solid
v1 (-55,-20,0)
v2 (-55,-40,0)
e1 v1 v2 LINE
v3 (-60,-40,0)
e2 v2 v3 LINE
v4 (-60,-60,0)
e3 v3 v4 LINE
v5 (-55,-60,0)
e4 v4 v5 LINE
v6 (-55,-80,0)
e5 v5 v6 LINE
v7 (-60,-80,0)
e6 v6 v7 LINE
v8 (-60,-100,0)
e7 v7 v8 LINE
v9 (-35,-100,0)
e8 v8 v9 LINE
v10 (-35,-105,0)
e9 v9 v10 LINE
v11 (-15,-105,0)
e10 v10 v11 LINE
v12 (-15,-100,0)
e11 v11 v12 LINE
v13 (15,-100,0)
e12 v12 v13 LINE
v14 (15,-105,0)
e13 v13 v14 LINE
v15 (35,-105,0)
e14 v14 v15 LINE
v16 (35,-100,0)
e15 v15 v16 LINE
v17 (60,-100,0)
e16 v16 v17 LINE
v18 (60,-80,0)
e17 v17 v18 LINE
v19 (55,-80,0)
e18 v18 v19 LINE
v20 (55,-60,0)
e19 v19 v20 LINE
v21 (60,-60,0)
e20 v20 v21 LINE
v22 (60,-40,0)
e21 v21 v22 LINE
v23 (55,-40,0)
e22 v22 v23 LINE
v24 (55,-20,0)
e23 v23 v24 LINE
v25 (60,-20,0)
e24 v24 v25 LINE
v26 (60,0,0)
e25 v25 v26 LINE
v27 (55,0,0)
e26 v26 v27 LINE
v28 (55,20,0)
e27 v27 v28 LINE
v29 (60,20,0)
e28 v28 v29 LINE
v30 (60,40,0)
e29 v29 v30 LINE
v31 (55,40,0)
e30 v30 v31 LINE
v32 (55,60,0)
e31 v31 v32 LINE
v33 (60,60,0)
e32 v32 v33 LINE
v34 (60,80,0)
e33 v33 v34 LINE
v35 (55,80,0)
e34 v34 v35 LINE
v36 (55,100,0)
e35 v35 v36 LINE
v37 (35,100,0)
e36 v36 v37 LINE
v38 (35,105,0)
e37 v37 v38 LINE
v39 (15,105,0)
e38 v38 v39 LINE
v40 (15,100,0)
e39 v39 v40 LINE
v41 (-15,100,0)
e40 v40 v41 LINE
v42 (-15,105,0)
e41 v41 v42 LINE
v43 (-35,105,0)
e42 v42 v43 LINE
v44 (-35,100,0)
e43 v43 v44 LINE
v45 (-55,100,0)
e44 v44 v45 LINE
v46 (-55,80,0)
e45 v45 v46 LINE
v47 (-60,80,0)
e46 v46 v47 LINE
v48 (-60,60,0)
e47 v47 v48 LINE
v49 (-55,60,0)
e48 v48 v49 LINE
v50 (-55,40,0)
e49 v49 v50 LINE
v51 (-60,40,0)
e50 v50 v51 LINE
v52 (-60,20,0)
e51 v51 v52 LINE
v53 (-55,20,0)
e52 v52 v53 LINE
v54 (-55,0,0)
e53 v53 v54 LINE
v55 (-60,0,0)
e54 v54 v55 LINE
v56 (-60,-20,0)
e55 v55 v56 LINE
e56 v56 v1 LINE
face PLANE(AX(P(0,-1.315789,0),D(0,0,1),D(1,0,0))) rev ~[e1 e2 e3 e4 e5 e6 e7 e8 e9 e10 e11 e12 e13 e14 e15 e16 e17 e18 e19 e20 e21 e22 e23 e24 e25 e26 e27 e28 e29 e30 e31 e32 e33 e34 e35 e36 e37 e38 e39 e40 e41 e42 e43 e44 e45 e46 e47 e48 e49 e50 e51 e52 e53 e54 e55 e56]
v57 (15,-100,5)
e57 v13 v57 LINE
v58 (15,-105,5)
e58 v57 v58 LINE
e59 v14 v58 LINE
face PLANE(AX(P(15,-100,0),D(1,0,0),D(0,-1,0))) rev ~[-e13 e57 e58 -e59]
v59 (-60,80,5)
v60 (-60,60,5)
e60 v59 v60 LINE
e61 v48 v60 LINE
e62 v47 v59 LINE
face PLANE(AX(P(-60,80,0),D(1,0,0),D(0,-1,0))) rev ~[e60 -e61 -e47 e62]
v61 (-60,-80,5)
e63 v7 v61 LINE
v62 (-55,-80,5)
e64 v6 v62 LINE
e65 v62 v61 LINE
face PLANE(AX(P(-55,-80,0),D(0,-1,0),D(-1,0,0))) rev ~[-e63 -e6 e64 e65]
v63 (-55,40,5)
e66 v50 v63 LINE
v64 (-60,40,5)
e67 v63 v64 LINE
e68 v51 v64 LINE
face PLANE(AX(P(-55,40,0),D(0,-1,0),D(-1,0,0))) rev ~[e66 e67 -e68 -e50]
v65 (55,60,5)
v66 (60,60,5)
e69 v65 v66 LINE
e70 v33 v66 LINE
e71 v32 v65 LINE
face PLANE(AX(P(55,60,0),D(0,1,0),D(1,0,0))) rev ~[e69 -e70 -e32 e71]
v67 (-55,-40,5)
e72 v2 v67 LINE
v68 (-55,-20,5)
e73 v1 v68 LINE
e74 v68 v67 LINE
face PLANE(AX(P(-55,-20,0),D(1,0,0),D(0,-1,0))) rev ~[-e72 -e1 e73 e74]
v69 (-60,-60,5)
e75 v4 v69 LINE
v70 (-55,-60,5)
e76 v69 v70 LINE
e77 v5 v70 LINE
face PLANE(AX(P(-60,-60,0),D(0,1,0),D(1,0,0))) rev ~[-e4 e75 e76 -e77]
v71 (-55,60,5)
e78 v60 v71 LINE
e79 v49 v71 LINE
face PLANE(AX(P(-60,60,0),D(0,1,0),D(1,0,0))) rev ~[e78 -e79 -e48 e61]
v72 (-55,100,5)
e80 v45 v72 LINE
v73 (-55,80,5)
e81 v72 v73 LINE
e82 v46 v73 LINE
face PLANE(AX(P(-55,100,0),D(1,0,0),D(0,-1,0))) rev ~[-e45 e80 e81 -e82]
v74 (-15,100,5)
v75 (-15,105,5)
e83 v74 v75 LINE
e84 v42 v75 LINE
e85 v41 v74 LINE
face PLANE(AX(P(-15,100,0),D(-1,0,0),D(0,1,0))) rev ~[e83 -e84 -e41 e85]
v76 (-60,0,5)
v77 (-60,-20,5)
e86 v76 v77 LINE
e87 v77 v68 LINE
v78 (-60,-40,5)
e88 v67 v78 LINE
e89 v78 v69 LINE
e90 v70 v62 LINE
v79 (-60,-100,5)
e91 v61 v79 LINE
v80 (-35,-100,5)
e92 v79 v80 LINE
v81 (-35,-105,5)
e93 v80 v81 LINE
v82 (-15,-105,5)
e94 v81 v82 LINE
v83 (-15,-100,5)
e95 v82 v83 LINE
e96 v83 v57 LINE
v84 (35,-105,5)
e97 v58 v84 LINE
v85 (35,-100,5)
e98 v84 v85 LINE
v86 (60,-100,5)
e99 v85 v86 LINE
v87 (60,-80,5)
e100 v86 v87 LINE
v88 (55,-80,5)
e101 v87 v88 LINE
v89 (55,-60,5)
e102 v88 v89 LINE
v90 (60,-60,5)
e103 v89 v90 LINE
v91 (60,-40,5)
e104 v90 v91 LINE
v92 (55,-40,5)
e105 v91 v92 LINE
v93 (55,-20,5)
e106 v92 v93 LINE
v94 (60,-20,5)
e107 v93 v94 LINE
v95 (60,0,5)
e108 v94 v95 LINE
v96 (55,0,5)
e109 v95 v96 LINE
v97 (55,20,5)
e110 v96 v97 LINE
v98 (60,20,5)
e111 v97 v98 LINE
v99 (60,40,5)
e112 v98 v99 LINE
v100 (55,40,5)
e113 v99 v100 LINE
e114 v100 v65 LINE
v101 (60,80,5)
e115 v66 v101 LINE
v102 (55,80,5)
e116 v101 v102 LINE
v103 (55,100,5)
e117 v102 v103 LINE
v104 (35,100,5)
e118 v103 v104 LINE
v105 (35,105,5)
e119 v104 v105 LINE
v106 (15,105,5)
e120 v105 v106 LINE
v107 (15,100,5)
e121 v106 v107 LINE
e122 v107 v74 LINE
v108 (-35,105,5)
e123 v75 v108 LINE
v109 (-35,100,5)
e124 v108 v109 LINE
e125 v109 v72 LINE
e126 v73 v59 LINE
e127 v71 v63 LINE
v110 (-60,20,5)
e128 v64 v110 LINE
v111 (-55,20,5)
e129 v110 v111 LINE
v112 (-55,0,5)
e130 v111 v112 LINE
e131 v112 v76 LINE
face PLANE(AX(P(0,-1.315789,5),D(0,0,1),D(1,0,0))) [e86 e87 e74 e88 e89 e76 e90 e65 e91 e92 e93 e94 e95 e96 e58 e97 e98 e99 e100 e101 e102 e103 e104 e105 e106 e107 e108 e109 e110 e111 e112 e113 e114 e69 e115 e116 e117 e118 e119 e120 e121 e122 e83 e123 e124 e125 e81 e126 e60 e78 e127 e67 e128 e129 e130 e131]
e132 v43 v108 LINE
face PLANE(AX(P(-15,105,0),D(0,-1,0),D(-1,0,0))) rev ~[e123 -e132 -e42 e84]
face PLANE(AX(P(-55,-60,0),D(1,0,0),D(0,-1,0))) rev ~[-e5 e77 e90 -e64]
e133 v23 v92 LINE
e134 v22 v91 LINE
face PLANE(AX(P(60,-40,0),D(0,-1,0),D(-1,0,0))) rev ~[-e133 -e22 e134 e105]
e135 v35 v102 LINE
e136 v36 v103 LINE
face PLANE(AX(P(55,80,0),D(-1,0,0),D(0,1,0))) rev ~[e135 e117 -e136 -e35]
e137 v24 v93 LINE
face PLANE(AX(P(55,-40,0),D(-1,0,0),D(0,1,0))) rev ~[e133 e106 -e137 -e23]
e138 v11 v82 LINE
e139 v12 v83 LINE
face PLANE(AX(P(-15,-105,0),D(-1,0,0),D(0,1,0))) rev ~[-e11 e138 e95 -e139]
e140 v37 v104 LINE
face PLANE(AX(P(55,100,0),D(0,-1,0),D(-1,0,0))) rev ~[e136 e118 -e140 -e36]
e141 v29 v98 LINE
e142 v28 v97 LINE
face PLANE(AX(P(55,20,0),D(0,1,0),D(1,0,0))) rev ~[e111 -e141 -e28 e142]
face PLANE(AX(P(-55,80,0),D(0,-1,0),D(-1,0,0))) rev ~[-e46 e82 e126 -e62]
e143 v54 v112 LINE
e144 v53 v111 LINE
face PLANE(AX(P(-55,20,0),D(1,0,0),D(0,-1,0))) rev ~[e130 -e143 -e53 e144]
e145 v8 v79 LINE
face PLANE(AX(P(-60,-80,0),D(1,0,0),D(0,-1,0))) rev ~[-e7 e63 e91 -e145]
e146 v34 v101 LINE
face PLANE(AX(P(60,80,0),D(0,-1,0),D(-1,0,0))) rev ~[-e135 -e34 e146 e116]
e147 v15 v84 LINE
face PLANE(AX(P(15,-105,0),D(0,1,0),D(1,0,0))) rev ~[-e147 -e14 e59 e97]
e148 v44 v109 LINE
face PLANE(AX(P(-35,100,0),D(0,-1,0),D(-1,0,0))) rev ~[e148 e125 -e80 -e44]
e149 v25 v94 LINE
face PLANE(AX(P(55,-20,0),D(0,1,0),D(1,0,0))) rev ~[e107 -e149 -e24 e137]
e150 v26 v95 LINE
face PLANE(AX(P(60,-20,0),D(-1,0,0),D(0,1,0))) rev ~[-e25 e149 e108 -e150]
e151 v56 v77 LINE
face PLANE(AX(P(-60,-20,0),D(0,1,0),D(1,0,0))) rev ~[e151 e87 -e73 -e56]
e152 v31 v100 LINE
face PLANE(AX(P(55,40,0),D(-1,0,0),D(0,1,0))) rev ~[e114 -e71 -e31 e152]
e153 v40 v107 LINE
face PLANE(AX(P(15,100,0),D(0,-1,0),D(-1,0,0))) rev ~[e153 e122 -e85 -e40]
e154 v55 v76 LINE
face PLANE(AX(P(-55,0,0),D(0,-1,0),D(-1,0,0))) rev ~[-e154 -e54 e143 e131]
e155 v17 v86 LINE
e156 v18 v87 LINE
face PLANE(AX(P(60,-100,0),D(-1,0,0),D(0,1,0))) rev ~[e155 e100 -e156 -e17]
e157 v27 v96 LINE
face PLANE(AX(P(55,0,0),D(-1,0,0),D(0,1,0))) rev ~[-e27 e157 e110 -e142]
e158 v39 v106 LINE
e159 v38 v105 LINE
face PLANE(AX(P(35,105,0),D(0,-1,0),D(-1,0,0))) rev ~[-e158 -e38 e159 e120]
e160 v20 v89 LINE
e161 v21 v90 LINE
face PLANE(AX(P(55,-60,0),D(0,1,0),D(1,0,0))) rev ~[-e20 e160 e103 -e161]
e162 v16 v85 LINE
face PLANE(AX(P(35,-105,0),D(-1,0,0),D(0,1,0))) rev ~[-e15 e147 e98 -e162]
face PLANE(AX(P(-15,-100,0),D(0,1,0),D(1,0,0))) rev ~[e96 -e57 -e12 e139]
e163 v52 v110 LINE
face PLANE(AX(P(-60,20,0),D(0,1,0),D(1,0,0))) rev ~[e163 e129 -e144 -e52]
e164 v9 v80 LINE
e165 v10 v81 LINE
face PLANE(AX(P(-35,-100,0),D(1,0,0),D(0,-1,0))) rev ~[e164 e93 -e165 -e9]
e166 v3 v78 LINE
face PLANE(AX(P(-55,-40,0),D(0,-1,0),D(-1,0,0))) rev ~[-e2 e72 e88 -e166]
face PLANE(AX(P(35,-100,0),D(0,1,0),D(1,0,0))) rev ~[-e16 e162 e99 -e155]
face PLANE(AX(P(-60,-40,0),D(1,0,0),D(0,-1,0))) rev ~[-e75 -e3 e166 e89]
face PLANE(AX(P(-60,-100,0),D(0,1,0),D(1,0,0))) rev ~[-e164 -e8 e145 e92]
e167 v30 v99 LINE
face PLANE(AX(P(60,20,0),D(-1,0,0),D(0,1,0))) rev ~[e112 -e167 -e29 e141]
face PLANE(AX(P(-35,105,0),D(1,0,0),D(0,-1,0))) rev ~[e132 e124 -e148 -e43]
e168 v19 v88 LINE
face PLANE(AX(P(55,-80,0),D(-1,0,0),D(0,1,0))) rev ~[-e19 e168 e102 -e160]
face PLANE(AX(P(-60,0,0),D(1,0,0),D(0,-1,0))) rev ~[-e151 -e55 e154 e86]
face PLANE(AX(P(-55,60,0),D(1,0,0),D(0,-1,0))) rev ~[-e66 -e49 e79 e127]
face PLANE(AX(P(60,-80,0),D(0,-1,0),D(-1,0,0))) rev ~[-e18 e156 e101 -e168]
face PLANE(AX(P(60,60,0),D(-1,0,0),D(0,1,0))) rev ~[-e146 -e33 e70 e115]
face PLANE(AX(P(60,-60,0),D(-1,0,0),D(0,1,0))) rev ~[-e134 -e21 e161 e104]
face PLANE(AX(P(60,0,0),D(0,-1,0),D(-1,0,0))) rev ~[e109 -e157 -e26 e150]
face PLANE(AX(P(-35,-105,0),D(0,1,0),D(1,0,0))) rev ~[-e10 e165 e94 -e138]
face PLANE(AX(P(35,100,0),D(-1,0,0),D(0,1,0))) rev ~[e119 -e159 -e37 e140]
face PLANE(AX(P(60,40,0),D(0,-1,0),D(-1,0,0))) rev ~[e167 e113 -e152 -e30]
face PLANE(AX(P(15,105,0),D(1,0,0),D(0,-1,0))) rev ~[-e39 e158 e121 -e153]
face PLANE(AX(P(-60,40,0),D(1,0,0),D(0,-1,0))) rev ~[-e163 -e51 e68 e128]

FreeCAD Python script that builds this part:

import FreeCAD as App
import Part
import Sketcher
from FreeCAD import Vector
Q = App.Units.Quantity


def add_polygon(sketch, points):
    """Adds a closed chain of lines whose ends are joined by coincident constraints."""
    first, n = sketch.GeometryCount, len(points)
    for a, b in zip(points, points[1:] + points[:1]):
        sketch.addGeometry(Part.LineSegment(App.Vector(*a, 0), App.Vector(*b, 0)), False)
    for i in range(n):
        sketch.addConstraint(Sketcher.Constraint("Coincident", first + i, 2, first + (i + 1) % n, 1))

doc = App.newDocument("Part")
body = doc.addObject("PartDesign::Body", "Body")

sketch1 = body.newObject("Sketcher::SketchObject", "Sketch")
sketch1.AttachmentSupport = (doc.getObject("XY_Plane"), [""])
sketch1.MapMode = "FlatFace"
add_polygon(sketch1, [(55, 80), (55, 100), (35, 100), (35, 105), (15, 105), (15, 100), (-15, 100), (-15, 105), (-35, 105), (-35, 100), (-55, 100), (-55, 80), (-60, 80), (-60, 60), (-55, 60), (-55, 40), (-60, 40), (-60, 20), (-55, 20), (-55, 0), (-60, 0), (-60, -20), (-55, -20), (-55, -40), (-60, -40), (-60, -60), (-55, -60), (-55, -80), (-60, -80), (-60, -100), (-35, -100), (-35, -105), (-15, -105), (-15, -100), (15, -100), (15, -105), (35, -105), (35, -100), (60, -100), (60, -80), (55, -80), (55, -60), (60, -60), (60, -40), (55, -40), (55, -20), (60, -20), (60, 0), (55, 0), (55, 20), (60, 20), (60, 40), (55, 40), (55, 60), (60, 60), (60, 80)])
sketch1.addConstraint([
    Sketcher.Constraint("Vertical", 0),
    Sketcher.Constraint("Horizontal", 1),
    Sketcher.Constraint("Vertical", 2),
    Sketcher.Constraint("Horizontal", 3),
    Sketcher.Constraint("Vertical", 4),
    Sketcher.Constraint("Horizontal", 5),
    Sketcher.Constraint("Vertical", 6),
    Sketcher.Constraint("Horizontal", 7),
    Sketcher.Constraint("Vertical", 8),
    Sketcher.Constraint("Horizontal", 9),
    Sketcher.Constraint("Vertical", 10),
    Sketcher.Constraint("Horizontal", 11),
    Sketcher.Constraint("Vertical", 12),
    Sketcher.Constraint("Horizontal", 13),
    Sketcher.Constraint("Vertical", 14),
    Sketcher.Constraint("Horizontal", 15),
    Sketcher.Constraint("Vertical", 16),
    Sketcher.Constraint("Horizontal", 17),
    Sketcher.Constraint("Vertical", 18),
    Sketcher.Constraint("Horizontal", 19),
    Sketcher.Constraint("Vertical", 20),
    Sketcher.Constraint("Horizontal", 21),
    Sketcher.Constraint("Vertical", 22),
    Sketcher.Constraint("Horizontal", 23),
    Sketcher.Constraint("Vertical", 24),
    Sketcher.Constraint("Horizontal", 25),
    Sketcher.Constraint("Vertical", 26),
    Sketcher.Constraint("Horizontal", 27),
    Sketcher.Constraint("Vertical", 28),
    Sketcher.Constraint("Horizontal", 29),
    Sketcher.Constraint("Vertical", 30),
    Sketcher.Constraint("Horizontal", 31),
    Sketcher.Constraint("Vertical", 32),
    Sketcher.Constraint("Horizontal", 33),
    Sketcher.Constraint("Vertical", 34),
    Sketcher.Constraint("Horizontal", 35),
    Sketcher.Constraint("Vertical", 36),
    Sketcher.Constraint("Horizontal", 37),
    Sketcher.Constraint("Vertical", 38),
    Sketcher.Constraint("Horizontal", 39),
    Sketcher.Constraint("Vertical", 40),
    Sketcher.Constraint("Horizontal", 41),
    Sketcher.Constraint("Vertical", 42),
    Sketcher.Constraint("Horizontal", 43),
    Sketcher.Constraint("Vertical", 44),
    Sketcher.Constraint("Horizontal", 45),
    Sketcher.Constraint("Vertical", 46),
    Sketcher.Constraint("Horizontal", 47),
    Sketcher.Constraint("Vertical", 48),
    Sketcher.Constraint("Horizontal", 49),
    Sketcher.Constraint("Vertical", 50),
    Sketcher.Constraint("Horizontal", 51),
    Sketcher.Constraint("Vertical", 52),
    Sketcher.Constraint("Horizontal", 53),
    Sketcher.Constraint("Vertical", 54),
    Sketcher.Constraint("Horizontal", 55),
    Sketcher.Constraint("Symmetric", 1, 2, 29, 2, -1, 1),
    Sketcher.Constraint("Symmetric", 3, 2, 31, 2, -1, 1),
    Sketcher.Constraint("Symmetric", 5, 2, 33, 2, -1, 1),
    Sketcher.Constraint("Symmetric", 7, 2, 35, 2, -1, 1),
    Sketcher.Constraint("Symmetric", 11, 2, 38, 2, -1, 1),
    Sketcher.Constraint("Symmetric", 13, 2, 40, 2, -1, 1),
    Sketcher.Constraint("Symmetric", 15, 2, 42, 2, -1, 1),
    Sketcher.Constraint("Symmetric", 17, 2, 44, 2, -1, 1),
    Sketcher.Constraint("Symmetric", 19, 2, 46, 2, -1, 1),
    Sketcher.Constraint("Symmetric", 21, 2, 48, 2, -1, 1),
    Sketcher.Constraint("Symmetric", 23, 2, 50, 2, -1, 1),
    Sketcher.Constraint("Symmetric", 25, 2, 52, 2, -1, 1),
    Sketcher.Constraint("Symmetric", 27, 2, 54, 2, -1, 1),
    Sketcher.Constraint("Symmetric", 3, 2, 6, 2, -2),
    Sketcher.Constraint("Symmetric", 1, 2, 8, 2, -2),
    Sketcher.Constraint("Symmetric", 28, 2, 37, 2, -2),
    Sketcher.Constraint("Symmetric", 26, 2, 39, 2, -2),
    Sketcher.Constraint("Symmetric", 24, 2, 41, 2, -2),
    Sketcher.Constraint("Symmetric", 22, 2, 43, 2, -2),
    Sketcher.Constraint("Symmetric", 16, 2, 20, 2, -1),
    Sketcher.Constraint("PointOnObject", 18, 2, -1),
    Sketcher.Constraint("Horizontal", 1, 2, 4, 2),
    Sketcher.Constraint("Vertical", 10, 2, 13, 2),
    Sketcher.Constraint("Vertical", 12, 2, 15, 2),
    Sketcher.Constraint("Vertical", 14, 2, 17, 2),
    Sketcher.Constraint("Vertical", 0, 2, 39, 2),
    Sketcher.Constraint("Equal", 1, 3),
    Sketcher.Constraint("Equal", 35, 0),
    Sketcher.Constraint("Equal", 55, 2),
    Sketcher.Constraint("Equal", 10, 12),
    Sketcher.Constraint("Equal", 12, 14),
    Sketcher.Constraint("Equal", 14, 16),
    Sketcher.Constraint("Equal", 16, 18),
    Sketcher.Constraint("DistanceX", 1, 2, 1, 1, Q("20 mm")),
    Sketcher.Constraint("DistanceX", 5, 2, 5, 1, Q("30 mm")),
    Sketcher.Constraint("DistanceX", 11, 2, 11, 1, Q("5 mm")),
])
pad1 = body.newObject("PartDesign::Pad", "Pad")
pad1.Profile = sketch1
pad1.Length = 5

doc.recompute()
